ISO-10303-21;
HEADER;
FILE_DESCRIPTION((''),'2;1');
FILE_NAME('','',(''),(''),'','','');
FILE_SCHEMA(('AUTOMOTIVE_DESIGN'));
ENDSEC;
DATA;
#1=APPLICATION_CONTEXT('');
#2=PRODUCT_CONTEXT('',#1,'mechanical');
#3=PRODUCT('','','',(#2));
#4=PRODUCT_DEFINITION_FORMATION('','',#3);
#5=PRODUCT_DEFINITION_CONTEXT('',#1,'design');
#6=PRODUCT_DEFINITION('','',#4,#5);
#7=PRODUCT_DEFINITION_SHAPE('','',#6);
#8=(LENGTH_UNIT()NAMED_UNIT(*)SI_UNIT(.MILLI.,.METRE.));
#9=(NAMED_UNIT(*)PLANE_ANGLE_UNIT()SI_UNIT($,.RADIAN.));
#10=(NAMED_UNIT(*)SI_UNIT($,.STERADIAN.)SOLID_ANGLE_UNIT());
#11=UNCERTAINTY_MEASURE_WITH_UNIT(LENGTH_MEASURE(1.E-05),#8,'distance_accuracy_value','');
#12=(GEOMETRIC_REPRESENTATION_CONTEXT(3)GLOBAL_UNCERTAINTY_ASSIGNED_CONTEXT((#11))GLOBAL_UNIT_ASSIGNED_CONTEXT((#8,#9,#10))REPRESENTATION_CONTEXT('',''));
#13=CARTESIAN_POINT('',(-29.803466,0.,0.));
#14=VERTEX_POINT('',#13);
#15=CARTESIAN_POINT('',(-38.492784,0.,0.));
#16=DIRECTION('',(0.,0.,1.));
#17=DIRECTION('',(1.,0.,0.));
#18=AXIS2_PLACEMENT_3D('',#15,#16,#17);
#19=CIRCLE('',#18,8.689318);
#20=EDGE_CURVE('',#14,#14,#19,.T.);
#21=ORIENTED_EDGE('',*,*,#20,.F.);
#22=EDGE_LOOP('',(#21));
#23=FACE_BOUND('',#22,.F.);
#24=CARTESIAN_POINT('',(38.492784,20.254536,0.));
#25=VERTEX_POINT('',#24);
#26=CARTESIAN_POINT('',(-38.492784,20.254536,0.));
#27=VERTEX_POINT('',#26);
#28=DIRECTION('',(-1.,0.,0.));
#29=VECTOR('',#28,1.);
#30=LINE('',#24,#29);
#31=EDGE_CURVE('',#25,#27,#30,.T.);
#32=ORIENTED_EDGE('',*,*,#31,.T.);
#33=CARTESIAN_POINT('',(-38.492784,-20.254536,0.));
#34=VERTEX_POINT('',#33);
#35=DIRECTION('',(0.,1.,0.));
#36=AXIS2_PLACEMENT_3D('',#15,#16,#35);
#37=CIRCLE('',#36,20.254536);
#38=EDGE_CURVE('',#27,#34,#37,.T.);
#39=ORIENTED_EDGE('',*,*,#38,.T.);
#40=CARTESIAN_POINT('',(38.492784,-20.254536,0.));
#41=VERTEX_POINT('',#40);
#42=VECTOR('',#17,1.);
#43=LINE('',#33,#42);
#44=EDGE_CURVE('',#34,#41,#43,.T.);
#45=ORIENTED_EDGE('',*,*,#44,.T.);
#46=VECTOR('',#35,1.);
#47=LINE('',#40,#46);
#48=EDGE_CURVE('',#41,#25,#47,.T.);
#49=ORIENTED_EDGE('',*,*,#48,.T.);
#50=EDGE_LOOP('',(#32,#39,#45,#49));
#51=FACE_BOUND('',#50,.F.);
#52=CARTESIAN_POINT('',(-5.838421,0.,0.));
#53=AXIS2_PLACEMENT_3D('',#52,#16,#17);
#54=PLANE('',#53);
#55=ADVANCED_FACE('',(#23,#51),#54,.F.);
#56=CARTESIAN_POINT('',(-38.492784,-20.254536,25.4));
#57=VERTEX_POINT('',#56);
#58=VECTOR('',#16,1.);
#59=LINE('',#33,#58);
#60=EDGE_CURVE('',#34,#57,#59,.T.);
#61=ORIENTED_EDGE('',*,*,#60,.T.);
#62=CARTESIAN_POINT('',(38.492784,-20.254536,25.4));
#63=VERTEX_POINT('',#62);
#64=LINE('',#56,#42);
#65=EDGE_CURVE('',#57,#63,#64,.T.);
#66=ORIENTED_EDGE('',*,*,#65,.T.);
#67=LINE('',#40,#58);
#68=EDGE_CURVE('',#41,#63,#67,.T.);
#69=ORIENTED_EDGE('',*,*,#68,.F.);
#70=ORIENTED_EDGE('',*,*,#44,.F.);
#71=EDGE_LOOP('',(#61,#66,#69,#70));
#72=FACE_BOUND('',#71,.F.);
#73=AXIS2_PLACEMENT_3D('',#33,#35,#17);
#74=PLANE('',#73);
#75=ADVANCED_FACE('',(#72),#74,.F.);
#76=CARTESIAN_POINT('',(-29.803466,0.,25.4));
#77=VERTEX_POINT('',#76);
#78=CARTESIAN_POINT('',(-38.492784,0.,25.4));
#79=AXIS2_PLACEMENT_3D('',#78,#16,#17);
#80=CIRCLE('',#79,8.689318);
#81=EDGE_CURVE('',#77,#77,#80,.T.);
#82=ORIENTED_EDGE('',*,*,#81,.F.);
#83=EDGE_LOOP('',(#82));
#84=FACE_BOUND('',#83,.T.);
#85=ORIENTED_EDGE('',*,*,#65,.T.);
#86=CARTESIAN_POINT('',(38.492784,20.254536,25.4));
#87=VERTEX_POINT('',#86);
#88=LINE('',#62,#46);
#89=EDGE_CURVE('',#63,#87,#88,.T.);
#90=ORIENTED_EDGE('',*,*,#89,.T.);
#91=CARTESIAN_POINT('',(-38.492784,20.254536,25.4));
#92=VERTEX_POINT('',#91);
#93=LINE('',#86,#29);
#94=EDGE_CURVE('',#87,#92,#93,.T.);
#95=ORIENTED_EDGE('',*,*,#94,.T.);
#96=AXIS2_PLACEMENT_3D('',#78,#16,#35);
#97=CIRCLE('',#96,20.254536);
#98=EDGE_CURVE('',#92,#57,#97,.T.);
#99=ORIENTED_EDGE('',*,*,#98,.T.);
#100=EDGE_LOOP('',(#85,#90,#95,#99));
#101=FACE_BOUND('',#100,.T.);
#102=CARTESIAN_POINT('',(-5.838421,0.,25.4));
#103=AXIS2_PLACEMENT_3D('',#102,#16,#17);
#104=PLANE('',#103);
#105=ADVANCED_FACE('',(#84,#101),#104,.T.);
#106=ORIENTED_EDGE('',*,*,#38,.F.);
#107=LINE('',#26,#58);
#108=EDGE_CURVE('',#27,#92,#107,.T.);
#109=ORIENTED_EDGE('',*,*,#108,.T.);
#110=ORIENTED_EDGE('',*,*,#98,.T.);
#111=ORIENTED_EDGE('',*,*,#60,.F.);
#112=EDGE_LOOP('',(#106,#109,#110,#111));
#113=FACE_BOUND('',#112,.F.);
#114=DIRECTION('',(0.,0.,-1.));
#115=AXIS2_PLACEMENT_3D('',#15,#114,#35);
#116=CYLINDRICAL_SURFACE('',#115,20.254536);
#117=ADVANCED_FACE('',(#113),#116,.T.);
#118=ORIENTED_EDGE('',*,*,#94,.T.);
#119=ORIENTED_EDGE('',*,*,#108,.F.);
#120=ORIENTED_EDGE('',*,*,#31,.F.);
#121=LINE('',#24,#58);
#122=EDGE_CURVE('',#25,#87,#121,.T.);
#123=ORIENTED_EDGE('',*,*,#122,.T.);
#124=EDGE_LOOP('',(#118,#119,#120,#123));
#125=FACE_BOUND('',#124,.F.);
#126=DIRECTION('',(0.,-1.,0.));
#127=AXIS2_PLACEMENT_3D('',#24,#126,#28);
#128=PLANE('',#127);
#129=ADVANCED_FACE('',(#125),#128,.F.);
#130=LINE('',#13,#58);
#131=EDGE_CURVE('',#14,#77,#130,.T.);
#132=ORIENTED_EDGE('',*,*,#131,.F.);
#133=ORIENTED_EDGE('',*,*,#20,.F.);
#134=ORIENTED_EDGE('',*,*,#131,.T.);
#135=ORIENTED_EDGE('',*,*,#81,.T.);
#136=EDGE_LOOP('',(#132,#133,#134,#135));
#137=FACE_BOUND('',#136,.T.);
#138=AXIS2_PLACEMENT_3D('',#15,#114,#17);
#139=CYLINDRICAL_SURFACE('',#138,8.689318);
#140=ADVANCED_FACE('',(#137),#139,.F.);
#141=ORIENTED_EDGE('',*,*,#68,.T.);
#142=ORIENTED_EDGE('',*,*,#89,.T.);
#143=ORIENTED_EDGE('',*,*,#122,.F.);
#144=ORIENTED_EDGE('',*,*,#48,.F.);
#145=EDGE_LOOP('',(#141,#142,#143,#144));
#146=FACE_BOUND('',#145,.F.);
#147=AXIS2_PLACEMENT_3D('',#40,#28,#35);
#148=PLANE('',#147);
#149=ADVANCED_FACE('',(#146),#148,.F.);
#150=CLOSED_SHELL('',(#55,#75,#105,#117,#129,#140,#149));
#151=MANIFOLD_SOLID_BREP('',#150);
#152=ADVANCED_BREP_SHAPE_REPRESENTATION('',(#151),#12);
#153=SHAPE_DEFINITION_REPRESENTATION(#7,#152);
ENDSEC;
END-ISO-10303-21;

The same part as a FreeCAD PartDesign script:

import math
import FreeCAD as App
import Part
import Sketcher
Q = App.Units.Quantity

doc = App.newDocument("Part")
body = doc.addObject("PartDesign::Body", "Body")

# Sketch on XY plane
sketch1 = body.newObject("Sketcher::SketchObject", "Sketch")
sketch1.AttachmentSupport = (doc.getObject("XY_Plane"), [""])
sketch1.MapMode = "FlatFace"
sketch1.addGeometry([
    Part.ArcOfCircle(Part.Circle(App.Vector(-38.492784, 0, 0), App.Vector(0, 0, 1), 20.254536), math.radians(90), math.radians(270)),  # 0
    Part.LineSegment(App.Vector(-38.492784, -20.254536, 0), App.Vector(38.492784, -20.254536, 0)),  # 1
    Part.LineSegment(App.Vector(38.492784, -20.254536, 0), App.Vector(38.492784, 20.254536, 0)),  # 2
    Part.LineSegment(App.Vector(38.492784, 20.254536, 0), App.Vector(-38.492784, 20.254536, 0)),  # 3
    Part.Circle(App.Vector(-38.492784, 0, 0), App.Vector(0, 0, 1), 8.689318),  # 4
], False)
sketch1.addConstraint([
    Sketcher.Constraint("Tangent", 0, 2, 1, 1),
    Sketcher.Constraint("Coincident", 1, 2, 2, 1),
    Sketcher.Constraint("Coincident", 2, 2, 3, 1),
    Sketcher.Constraint("Tangent", 3, 2, 0, 1),
    Sketcher.Constraint("Horizontal", 1),
    Sketcher.Constraint("Vertical", 2),
    Sketcher.Constraint("Horizontal", 3),
    Sketcher.Constraint("Coincident", 4, 3, 0, 3),
    Sketcher.Constraint("Symmetric", 0, 2, 2, 2, -1, 1),
    Sketcher.Constraint("Diameter", 4, Q("17.378636 mm")),
    Sketcher.Constraint("Radius", 0, Q("20.254536 mm")),
    Sketcher.Constraint("DistanceX", 1, 1, 1, 2, Q("76.985568 mm")),
])
pad1 = body.newObject("PartDesign::Pad", "Pad")
pad1.Profile = sketch1
pad1.Length = Q("1 in")

doc.recompute()
